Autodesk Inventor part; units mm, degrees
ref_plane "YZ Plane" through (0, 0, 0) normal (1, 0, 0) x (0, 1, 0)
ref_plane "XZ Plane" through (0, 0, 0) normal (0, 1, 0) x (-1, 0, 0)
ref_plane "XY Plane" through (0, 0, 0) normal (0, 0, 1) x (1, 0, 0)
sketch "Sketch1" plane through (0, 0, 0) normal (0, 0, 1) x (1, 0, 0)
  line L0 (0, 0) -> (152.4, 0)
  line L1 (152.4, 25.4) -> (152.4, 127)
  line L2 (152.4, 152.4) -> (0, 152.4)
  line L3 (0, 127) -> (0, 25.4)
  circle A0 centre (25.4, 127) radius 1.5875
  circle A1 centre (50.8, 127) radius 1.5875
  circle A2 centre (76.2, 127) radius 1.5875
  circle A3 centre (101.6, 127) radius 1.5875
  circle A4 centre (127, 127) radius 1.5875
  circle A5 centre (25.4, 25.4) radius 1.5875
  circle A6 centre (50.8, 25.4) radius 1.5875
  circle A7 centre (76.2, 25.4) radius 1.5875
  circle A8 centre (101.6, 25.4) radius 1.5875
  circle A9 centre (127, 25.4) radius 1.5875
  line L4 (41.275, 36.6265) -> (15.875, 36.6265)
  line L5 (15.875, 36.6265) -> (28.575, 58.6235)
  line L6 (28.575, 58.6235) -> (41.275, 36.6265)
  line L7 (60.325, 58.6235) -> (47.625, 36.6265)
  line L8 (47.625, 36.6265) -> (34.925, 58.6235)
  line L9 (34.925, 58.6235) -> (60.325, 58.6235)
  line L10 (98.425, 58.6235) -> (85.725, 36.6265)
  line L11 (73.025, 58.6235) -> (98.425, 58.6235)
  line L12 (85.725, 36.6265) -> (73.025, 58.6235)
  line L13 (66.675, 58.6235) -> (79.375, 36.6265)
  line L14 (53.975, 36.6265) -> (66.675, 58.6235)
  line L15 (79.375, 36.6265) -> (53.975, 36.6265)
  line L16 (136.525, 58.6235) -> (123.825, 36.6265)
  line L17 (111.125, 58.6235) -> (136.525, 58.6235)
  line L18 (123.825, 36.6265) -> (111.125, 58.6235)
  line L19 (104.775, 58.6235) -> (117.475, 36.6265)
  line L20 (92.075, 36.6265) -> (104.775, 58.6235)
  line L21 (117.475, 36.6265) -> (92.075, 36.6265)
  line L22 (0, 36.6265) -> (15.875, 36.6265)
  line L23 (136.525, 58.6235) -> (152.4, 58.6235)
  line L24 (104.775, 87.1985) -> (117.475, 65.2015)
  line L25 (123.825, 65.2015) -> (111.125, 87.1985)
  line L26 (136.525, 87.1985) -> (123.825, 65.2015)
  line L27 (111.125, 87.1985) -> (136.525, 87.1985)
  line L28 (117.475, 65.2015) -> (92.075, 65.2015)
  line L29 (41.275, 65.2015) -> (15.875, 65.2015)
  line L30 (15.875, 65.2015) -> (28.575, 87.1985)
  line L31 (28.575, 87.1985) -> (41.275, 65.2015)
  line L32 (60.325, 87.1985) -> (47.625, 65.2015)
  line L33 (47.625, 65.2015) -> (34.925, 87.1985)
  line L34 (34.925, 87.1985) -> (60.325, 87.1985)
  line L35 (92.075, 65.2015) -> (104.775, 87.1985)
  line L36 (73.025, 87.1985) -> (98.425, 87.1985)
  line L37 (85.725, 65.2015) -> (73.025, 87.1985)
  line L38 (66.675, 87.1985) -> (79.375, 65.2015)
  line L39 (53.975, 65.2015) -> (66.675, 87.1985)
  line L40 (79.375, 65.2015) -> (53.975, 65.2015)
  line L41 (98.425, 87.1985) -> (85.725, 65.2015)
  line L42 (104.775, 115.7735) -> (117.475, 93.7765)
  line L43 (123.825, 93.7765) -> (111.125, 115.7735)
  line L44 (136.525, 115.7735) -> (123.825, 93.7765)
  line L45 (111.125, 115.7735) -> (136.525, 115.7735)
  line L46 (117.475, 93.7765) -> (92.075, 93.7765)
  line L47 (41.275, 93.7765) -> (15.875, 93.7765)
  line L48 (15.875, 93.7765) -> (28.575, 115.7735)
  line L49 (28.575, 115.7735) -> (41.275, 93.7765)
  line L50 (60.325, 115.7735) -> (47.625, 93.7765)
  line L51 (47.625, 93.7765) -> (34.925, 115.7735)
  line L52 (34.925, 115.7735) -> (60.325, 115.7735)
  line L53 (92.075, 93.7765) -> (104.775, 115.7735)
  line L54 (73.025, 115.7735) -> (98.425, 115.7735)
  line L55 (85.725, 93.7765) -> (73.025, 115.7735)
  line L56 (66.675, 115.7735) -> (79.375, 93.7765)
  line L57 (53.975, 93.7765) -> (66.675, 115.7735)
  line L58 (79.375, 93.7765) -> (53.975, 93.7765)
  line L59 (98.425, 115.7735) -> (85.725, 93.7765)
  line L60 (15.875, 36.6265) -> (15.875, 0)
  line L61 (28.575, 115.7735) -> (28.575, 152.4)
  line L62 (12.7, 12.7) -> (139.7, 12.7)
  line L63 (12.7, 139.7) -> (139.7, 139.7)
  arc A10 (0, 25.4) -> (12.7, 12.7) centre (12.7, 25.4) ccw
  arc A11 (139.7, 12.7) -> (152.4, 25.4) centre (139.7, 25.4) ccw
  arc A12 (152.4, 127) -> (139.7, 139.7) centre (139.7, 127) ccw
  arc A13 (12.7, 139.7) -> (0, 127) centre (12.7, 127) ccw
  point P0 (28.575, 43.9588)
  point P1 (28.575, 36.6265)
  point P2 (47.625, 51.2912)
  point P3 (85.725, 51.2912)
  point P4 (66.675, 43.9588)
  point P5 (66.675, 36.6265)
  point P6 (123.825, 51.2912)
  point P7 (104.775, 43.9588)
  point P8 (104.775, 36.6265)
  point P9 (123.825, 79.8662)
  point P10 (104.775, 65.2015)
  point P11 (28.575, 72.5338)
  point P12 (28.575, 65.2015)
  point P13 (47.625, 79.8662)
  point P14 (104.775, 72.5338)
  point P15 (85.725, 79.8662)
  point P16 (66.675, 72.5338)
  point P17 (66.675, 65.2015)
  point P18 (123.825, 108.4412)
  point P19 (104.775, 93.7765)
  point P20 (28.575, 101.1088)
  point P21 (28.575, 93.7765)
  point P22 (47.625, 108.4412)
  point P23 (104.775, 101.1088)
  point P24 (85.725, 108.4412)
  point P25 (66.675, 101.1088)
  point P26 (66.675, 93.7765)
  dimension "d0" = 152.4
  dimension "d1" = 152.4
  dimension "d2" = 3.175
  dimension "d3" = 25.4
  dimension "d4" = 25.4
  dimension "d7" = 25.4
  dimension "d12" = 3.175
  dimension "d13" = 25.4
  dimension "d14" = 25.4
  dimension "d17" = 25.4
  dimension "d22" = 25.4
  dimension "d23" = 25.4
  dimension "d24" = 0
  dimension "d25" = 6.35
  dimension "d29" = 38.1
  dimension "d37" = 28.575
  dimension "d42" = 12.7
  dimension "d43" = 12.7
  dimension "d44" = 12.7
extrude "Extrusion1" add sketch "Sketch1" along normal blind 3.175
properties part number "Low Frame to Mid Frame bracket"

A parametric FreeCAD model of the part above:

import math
import FreeCAD as App
import Part
import Sketcher

V = App.Vector
Q = App.Units.Quantity


def add_polygon(sketch, points):
    """Adds a closed chain of lines whose ends are joined by coincident constraints."""
    first, n = sketch.GeometryCount, len(points)
    for a, b in zip(points, points[1:] + points[:1]):
        sketch.addGeometry(Part.LineSegment(App.Vector(*a, 0), App.Vector(*b, 0)), False)
    for i in range(n):
        sketch.addConstraint(Sketcher.Constraint("Coincident", first + i, 2, first + (i + 1) % n, 1))

doc = App.newDocument("Part")
params = doc.addObject("Spreadsheet::Sheet", "Params")
for row, (alias, value) in enumerate([
    ("sketch1_radius", "0.5 in"),
    ("sketch1_width", "1 in"),
    ("sketch1_length", "1 in"),
    ("sketch1_diameter", "0.125 in"),
    ("sketch1_height", "4 in"),
    ("pad1_length", "0.125 in"),
], start=1):
    params.set(f"A{row}", alias)
    params.set(f"B{row}", "=" + value)
    params.setAlias(f"B{row}", alias)

body = doc.addObject("PartDesign::Body", "Body")

# Sketch on XY plane
sketch1 = doc.addObject("Sketcher::SketchObject", "Sketch")
body.addObject(sketch1)
sketch1.AttachmentSupport = (doc.XY_Plane, [""])
sketch1.MapMode = "FlatFace"
sketch1.addGeometry(Part.ArcOfCircle(Part.Circle(V(139.7, 25.4, 0), V(0, 0, 1), 12.7), math.radians(-90), math.radians(0)), False)  # 0
sketch1.addGeometry(Part.LineSegment(V(152.4, 25.4, 0), V(152.4, 58.6235, 0)), False)  # 1
sketch1.addGeometry(Part.LineSegment(V(152.4, 58.6235, 0), V(152.4, 127, 0)), False)  # 2
sketch1.addGeometry(Part.ArcOfCircle(Part.Circle(V(139.7, 127, 0), V(0, 0, 1), 12.7), math.radians(0), math.radians(90)), False)  # 3
sketch1.addGeometry(Part.LineSegment(V(139.7, 139.7, 0), V(28.575, 139.7, 0)), False)  # 4
sketch1.addGeometry(Part.LineSegment(V(28.575, 139.7, 0), V(12.7, 139.7, 0)), False)  # 5
sketch1.addGeometry(Part.ArcOfCircle(Part.Circle(V(12.7, 127, 0), V(0, 0, 1), 12.7), math.radians(90), math.radians(180)), False)  # 6
sketch1.addGeometry(Part.LineSegment(V(0, 127, 0), V(0, 25.4, 0)), False)  # 7
sketch1.addGeometry(Part.ArcOfCircle(Part.Circle(V(12.7, 25.4, 0), V(0, 0, 1), 12.7), math.radians(180), math.radians(270)), False)  # 8
sketch1.addGeometry(Part.LineSegment(V(12.7, 12.7, 0), V(139.7, 12.7, 0)), False)  # 9
sketch1.addGeometry(Part.Circle(V(25.4, 25.4, 0), V(0, 0, 1), 1.5875), False)  # 10
sketch1.addGeometry(Part.Circle(V(50.8, 25.4, 0), V(0, 0, 1), 1.5875), False)  # 11
add_polygon(sketch1, [(41.275, 36.6265), (15.875, 36.6265), (28.575, 58.6235)])  # lines 12-14
add_polygon(sketch1, [(34.925, 58.6235), (60.325, 58.6235), (47.625, 36.6265)])  # lines 15-17
add_polygon(sketch1, [(53.975, 36.6265), (66.675, 58.6235), (79.375, 36.6265)])  # lines 18-20
sketch1.addGeometry(Part.Circle(V(76.2, 25.4, 0), V(0, 0, 1), 1.5875), False)  # 21
sketch1.addGeometry(Part.Circle(V(101.6, 25.4, 0), V(0, 0, 1), 1.5875), False)  # 22
sketch1.addGeometry(Part.Circle(V(127, 25.4, 0), V(0, 0, 1), 1.5875), False)  # 23
add_polygon(sketch1, [(73.025, 58.6235), (98.425, 58.6235), (85.725, 36.6265)])  # lines 24-26
add_polygon(sketch1, [(92.075, 36.6265), (104.775, 58.6235), (117.475, 36.6265)])  # lines 27-29
add_polygon(sketch1, [(111.125, 58.6235), (136.525, 58.6235), (123.825, 36.6265)])  # lines 30-32
add_polygon(sketch1, [(28.575, 87.1985), (41.275, 65.2015), (15.875, 65.2015)])  # lines 33-35
add_polygon(sketch1, [(15.875, 93.7765), (28.575, 115.7735), (41.275, 93.7765)])  # lines 36-38
add_polygon(sketch1, [(34.925, 87.1985), (60.325, 87.1985), (47.625, 65.2015)])  # lines 39-41
add_polygon(sketch1, [(53.975, 65.2015), (66.675, 87.1985), (79.375, 65.2015)])  # lines 42-44
add_polygon(sketch1, [(34.925, 115.7735), (60.325, 115.7735), (47.625, 93.7765)])  # lines 45-47
add_polygon(sketch1, [(53.975, 93.7765), (66.675, 115.7735), (79.375, 93.7765)])  # lines 48-50
sketch1.addGeometry(Part.Circle(V(25.4, 127, 0), V(0, 0, 1), 1.5875), False)  # 51
sketch1.addGeometry(Part.Circle(V(50.8, 127, 0), V(0, 0, 1), 1.5875), False)  # 52
add_polygon(sketch1, [(85.725, 65.2015), (73.025, 87.1985), (98.425, 87.1985)])  # lines 53-55
add_polygon(sketch1, [(92.075, 65.2015), (104.775, 87.1985), (117.475, 65.2015)])  # lines 56-58
add_polygon(sketch1, [(85.725, 93.7765), (73.025, 115.7735), (98.425, 115.7735)])  # lines 59-61
add_polygon(sketch1, [(92.075, 93.7765), (104.775, 115.7735), (117.475, 93.7765)])  # lines 62-64
add_polygon(sketch1, [(136.525, 87.1985), (123.825, 65.2015), (111.125, 87.1985)])  # lines 65-67
add_polygon(sketch1, [(136.525, 115.7735), (123.825, 93.7765), (111.125, 115.7735)])  # lines 68-70
sketch1.addGeometry(Part.Circle(V(76.2, 127, 0), V(0, 0, 1), 1.5875), False)  # 71
sketch1.addGeometry(Part.Circle(V(101.6, 127, 0), V(0, 0, 1), 1.5875), False)  # 72
sketch1.addGeometry(Part.Circle(V(127, 127, 0), V(0, 0, 1), 1.5875), False)  # 73
sketch1.addConstraint([
    Sketcher.Constraint("Tangent", 0, 2, 1, 1),
    Sketcher.Constraint("Coincident", 1, 2, 2, 1),
    Sketcher.Constraint("Tangent", 2, 2, 3, 1),
    Sketcher.Constraint("Tangent", 3, 2, 4, 1),
    Sketcher.Constraint("Coincident", 4, 2, 5, 1),
    Sketcher.Constraint("Tangent", 5, 2, 6, 1),
    Sketcher.Constraint("Tangent", 6, 2, 7, 1),
    Sketcher.Constraint("Tangent", 7, 2, 8, 1),
    Sketcher.Constraint("Tangent", 8, 2, 9, 1),
    Sketcher.Constraint("Tangent", 9, 2, 0, 1),
    Sketcher.Constraint("Vertical", 1),
    Sketcher.Constraint("Vertical", 2),
    Sketcher.Constraint("Horizontal", 4),
    Sketcher.Constraint("Horizontal", 5),
    Sketcher.Constraint("Vertical", 7),
    Sketcher.Constraint("Horizontal", 9),
    Sketcher.Constraint("Horizontal", 12),
    Sketcher.Constraint("Horizontal", 15),
    Sketcher.Constraint("Horizontal", 20),
    Sketcher.Constraint("Horizontal", 24),
    Sketcher.Constraint("Horizontal", 29),
    Sketcher.Constraint("Horizontal", 30),
    Sketcher.Constraint("Horizontal", 34),
    Sketcher.Constraint("Horizontal", 38),
    Sketcher.Constraint("Horizontal", 39),
    Sketcher.Constraint("Horizontal", 44),
    Sketcher.Constraint("Horizontal", 45),
    Sketcher.Constraint("Horizontal", 50),
    Sketcher.Constraint("Horizontal", 54),
    Sketcher.Constraint("Horizontal", 58),
    Sketcher.Constraint("Horizontal", 60),
    Sketcher.Constraint("Horizontal", 64),
    Sketcher.Constraint("Horizontal", 67),
    Sketcher.Constraint("Horizontal", 70),
    Sketcher.Constraint("Equal", 0, 3),
    Sketcher.Constraint("Equal", 3, 6),
    Sketcher.Constraint("Equal", 6, 8),
    Sketcher.Constraint("Equal", 10, 11),
    Sketcher.Constraint("Equal", 11, 21),
    Sketcher.Constraint("Equal", 21, 22),
    Sketcher.Constraint("Equal", 22, 23),
    Sketcher.Constraint("Equal", 23, 51),
    Sketcher.Constraint("Equal", 51, 52),
    Sketcher.Constraint("Equal", 52, 71),
    Sketcher.Constraint("Equal", 71, 72),
    Sketcher.Constraint("Equal", 72, 73),
    Sketcher.Constraint("PointOnObject", 6, 2, -2),
    Sketcher.Constraint("Parallel", 13, 16),
    Sketcher.Constraint("Parallel", 14, 17),
    Sketcher.Constraint("Parallel", 16, 18),
    Sketcher.Constraint("Parallel", 17, 19),
    Sketcher.Constraint("Parallel", 18, 25),
    Sketcher.Constraint("Parallel", 19, 26),
    Sketcher.Constraint("Parallel", 25, 27),
    Sketcher.Constraint("Parallel", 26, 28),
    Sketcher.Constraint("Parallel", 27, 31),
    Sketcher.Constraint("Parallel", 28, 32),
    Sketcher.Constraint("Parallel", 32, 33),
    Sketcher.Constraint("Parallel", 31, 35),
    Sketcher.Constraint("Parallel", 35, 36),
    Sketcher.Constraint("Parallel", 33, 37),
    Sketcher.Constraint("Parallel", 36, 40),
    Sketcher.Constraint("Parallel", 37, 41),
    Sketcher.Constraint("Parallel", 40, 42),
    Sketcher.Constraint("Parallel", 41, 43),
    Sketcher.Constraint("Parallel", 42, 46),
    Sketcher.Constraint("Parallel", 43, 47),
    Sketcher.Constraint("Parallel", 46, 48),
    Sketcher.Constraint("Parallel", 47, 49),
    Sketcher.Constraint("Parallel", 49, 53),
    Sketcher.Constraint("Parallel", 48, 55),
    Sketcher.Constraint("Parallel", 55, 56),
    Sketcher.Constraint("Parallel", 53, 57),
    Sketcher.Constraint("Parallel", 57, 59),
    Sketcher.Constraint("Parallel", 56, 61),
    Sketcher.Constraint("Parallel", 61, 62),
    Sketcher.Constraint("Parallel", 59, 63),
    Sketcher.Constraint("Parallel", 62, 65),
    Sketcher.Constraint("Parallel", 63, 66),
    Sketcher.Constraint("Parallel", 65, 68),
    Sketcher.Constraint("Parallel", 66, 69),
    Sketcher.Constraint("Horizontal", 8, 3, 10, 3),
    Sketcher.Constraint("Horizontal", 10, 3, 11, 3),
    Sketcher.Constraint("Horizontal", 11, 3, 21, 3),
    Sketcher.Constraint("Horizontal", 21, 3, 22, 3),
    Sketcher.Constraint("Horizontal", 22, 3, 23, 3),
    Sketcher.Constraint("Horizontal", 6, 3, 51, 3),
    Sketcher.Constraint("Horizontal", 51, 3, 52, 3),
    Sketcher.Constraint("Horizontal", 52, 3, 71, 3),
    Sketcher.Constraint("Horizontal", 71, 3, 72, 3),
    Sketcher.Constraint("Horizontal", 72, 3, 73, 3),
    Sketcher.Constraint("Horizontal", 1, 2, 13, 2),
    Sketcher.Constraint("Horizontal", 13, 2, 15, 2),
    Sketcher.Constraint("Horizontal", 14, 2, 16, 2),
    Sketcher.Constraint("Horizontal", 17, 2, 18, 2),
    Sketcher.Constraint("Horizontal", 16, 2, 19, 2),
    Sketcher.Constraint("Horizontal", 18, 2, 24, 2),
    Sketcher.Constraint("Horizontal", 20, 2, 25, 2),
    Sketcher.Constraint("Horizontal", 26, 2, 27, 2),
    Sketcher.Constraint("Horizontal", 25, 2, 28, 2),
    Sketcher.Constraint("Horizontal", 27, 2, 30, 2),
    Sketcher.Constraint("Horizontal", 29, 2, 31, 2),
    Sketcher.Constraint("Horizontal", 35, 2, 39, 2),
    Sketcher.Constraint("Horizontal", 34, 2, 40, 2),
    Sketcher.Constraint("Horizontal", 41, 2, 42, 2),
    Sketcher.Constraint("Horizontal", 40, 2, 43, 2),
    Sketcher.Constraint("Horizontal", 36, 2, 45, 2),
    Sketcher.Constraint("Horizontal", 38, 2, 46, 2),
    Sketcher.Constraint("Horizontal", 47, 2, 48, 2),
    Sketcher.Constraint("Horizontal", 46, 2, 49, 2),
    Sketcher.Constraint("Horizontal", 42, 2, 53, 2),
    Sketcher.Constraint("Horizontal", 44, 2, 55, 2),
    Sketcher.Constraint("Horizontal", 54, 2, 56, 2),
    Sketcher.Constraint("Horizontal", 55, 2, 57, 2),
    Sketcher.Constraint("Horizontal", 48, 2, 59, 2),
    Sketcher.Constraint("Horizontal", 50, 2, 61, 2),
    Sketcher.Constraint("Horizontal", 60, 2, 62, 2),
    Sketcher.Constraint("Horizontal", 61, 2, 63, 2),
    Sketcher.Constraint("Horizontal", 58, 2, 65, 2),
    Sketcher.Constraint("Horizontal", 56, 2, 66, 2),
    Sketcher.Constraint("Horizontal", 64, 2, 68, 2),
    Sketcher.Constraint("Horizontal", 62, 2, 69, 2),
    Sketcher.Constraint("Vertical", 10, 3, 51, 3),
    Sketcher.Constraint("Vertical", 11, 3, 52, 3),
    Sketcher.Constraint("Vertical", 21, 3, 71, 3),
    Sketcher.Constraint("Vertical", 22, 3, 72, 3),
    Sketcher.Constraint("Vertical", 23, 3, 73, 3),
    Sketcher.Constraint("Vertical", 4, 2, 13, 2),
    Sketcher.Constraint("Vertical", 14, 2, 33, 2),
    Sketcher.Constraint("Vertical", 12, 2, 34, 2),
    Sketcher.Constraint("Vertical", 35, 2, 36, 2),
    Sketcher.Constraint("Vertical", 33, 2, 37, 2),
    Sketcher.Constraint("Vertical", 15, 2, 39, 2),
    Sketcher.Constraint("Vertical", 18, 2, 42, 2),
    Sketcher.Constraint("Vertical", 39, 2, 45, 2),
    Sketcher.Constraint("Vertical", 42, 2, 48, 2),
    Sketcher.Constraint("Vertical", 26, 2, 53, 2),
    Sketcher.Constraint("Vertical", 27, 2, 56, 2),
    Sketcher.Constraint("Vertical", 53, 2, 59, 2),
    Sketcher.Constraint("Vertical", 56, 2, 62, 2),
    Sketcher.Constraint("Vertical", 31, 2, 65, 2),
    Sketcher.Constraint("Vertical", 65, 2, 68, 2),
    Sketcher.Constraint("Equal", 13, 14),
    Sketcher.Constraint("Radius", 0, Q("0.5 in")),
    Sketcher.Constraint("DistanceX", 12, 2, 12, 1, Q("1 in")),
    Sketcher.Constraint("Distance", 13, Q("1 in")),
    Sketcher.Constraint("Diameter", 10, Q("0.125 in")),
    Sketcher.Constraint("DistanceY", -1, 1, 0, 3, Q("1 in")),
    Sketcher.Constraint("DistanceX", -1, 1, 10, 3, Q("1 in")),
    Sketcher.Constraint("DistanceX", -1, 1, 0, 2, Q("6 in")),
    Sketcher.Constraint("DistanceY", 7, 2, 7, 1, Q("4 in")),
    Sketcher.Constraint("DistanceX", -1, 1, 11, 3, Q("2 in")),
    Sketcher.Constraint("DistanceX", -1, 1, 21, 3, Q("3 in")),
    Sketcher.Constraint("DistanceX", -1, 1, 22, 3, Q("4 in")),
    Sketcher.Constraint("DistanceX", -1, 1, 23, 3, Q("5 in")),
    Sketcher.Constraint("DistanceX", -1, 1, 4, 2, Q("1.125 in")),
    Sketcher.Constraint("DistanceY", 1, 1, 1, 2, Q("1.308 in")),
    Sketcher.Constraint("DistanceX", -1, 1, 15, 2, Q("2.375 in")),
    Sketcher.Constraint("DistanceX", -1, 1, 18, 2, Q("2.625 in")),
    Sketcher.Constraint("DistanceX", -1, 1, 24, 2, Q("3.875 in")),
    Sketcher.Constraint("DistanceX", -1, 1, 27, 2, Q("4.125 in")),
    Sketcher.Constraint("DistanceX", -1, 1, 30, 2, Q("5.375 in")),
    Sketcher.Constraint("DistanceY", -1, 1, 33, 2, Q("2.567 in")),
    Sketcher.Constraint("DistanceY", -1, 1, 36, 2, Q("4.558 in")),
])
sketch1.setExpression("Constraints[197]", "Params.sketch1_radius")
sketch1.setExpression("Constraints[198]", "Params.sketch1_width")
sketch1.setExpression("Constraints[199]", "Params.sketch1_length")
sketch1.setExpression("Constraints[200]", "Params.sketch1_diameter")
sketch1.setExpression("Constraints[204]", "Params.sketch1_height")
pad1 = doc.addObject("PartDesign::Pad", "Pad")
body.addObject(pad1)
pad1.Profile = sketch1
pad1.setExpression("Length", "Params.pad1_length")

doc.recompute()
